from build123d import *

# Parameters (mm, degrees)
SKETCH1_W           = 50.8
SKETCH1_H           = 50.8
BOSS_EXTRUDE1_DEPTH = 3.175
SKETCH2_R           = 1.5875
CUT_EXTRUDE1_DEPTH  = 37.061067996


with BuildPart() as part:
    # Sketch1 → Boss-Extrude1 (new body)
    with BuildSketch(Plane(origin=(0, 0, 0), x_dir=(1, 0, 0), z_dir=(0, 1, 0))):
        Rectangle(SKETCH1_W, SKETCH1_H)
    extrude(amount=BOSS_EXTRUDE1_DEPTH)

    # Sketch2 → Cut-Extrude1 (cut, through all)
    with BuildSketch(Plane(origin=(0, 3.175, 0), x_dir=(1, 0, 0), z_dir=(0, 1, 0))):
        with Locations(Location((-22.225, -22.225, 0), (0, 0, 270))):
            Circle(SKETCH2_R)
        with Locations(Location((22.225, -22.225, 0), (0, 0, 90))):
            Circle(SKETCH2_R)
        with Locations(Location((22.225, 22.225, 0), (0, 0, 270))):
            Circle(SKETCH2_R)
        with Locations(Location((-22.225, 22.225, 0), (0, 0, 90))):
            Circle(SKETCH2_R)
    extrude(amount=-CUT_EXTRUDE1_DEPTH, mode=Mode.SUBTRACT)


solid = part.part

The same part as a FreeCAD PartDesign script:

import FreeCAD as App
import Part
import Sketcher

V = App.Vector
Q = App.Units.Quantity


def add_polygon(sketch, points):
    """Adds a closed chain of lines whose ends are joined by coincident constraints."""
    first, n = sketch.GeometryCount, len(points)
    for a, b in zip(points, points[1:] + points[:1]):
        sketch.addGeometry(Part.LineSegment(App.Vector(*a, 0), App.Vector(*b, 0)), False)
    for i in range(n):
        sketch.addConstraint(Sketcher.Constraint("Coincident", first + i, 2, first + (i + 1) % n, 1))

doc = App.newDocument("Part")
body = doc.addObject("PartDesign::Body", "Body")

# Sketch on XZ plane
sketch1 = body.newObject("Sketcher::SketchObject", "Sketch")
sketch1.AttachmentSupport = (doc.getObject("XZ_Plane"), [""])
sketch1.MapMode = "FlatFace"
add_polygon(sketch1, [(-25, -25), (-25, 25), (25, 25), (25, -25)])  # lines 0-3
sketch1.addConstraint(Sketcher.Constraint("Vertical", 0))
sketch1.addConstraint(Sketcher.Constraint("Horizontal", 1))
sketch1.addConstraint(Sketcher.Constraint("Vertical", 2))
sketch1.addConstraint(Sketcher.Constraint("Horizontal", 3))
sketch1.addConstraint(Sketcher.Constraint("Symmetric", 0, 2, 2, 2, -1, 1))
sketch1.addConstraint(Sketcher.Constraint("Equal", 3, 0))
sketch1.addConstraint(Sketcher.Constraint("DistanceX", 1, 1, 1, 2, Q("2 in")))
pad1 = body.newObject("PartDesign::Pad", "Pad")
pad1.Profile = sketch1
pad1.Length = Q("0.125 in")
pad1.Reversed = True

# Sketch on XZ plane
sketch2 = body.newObject("Sketcher::SketchObject", "Sketch001")
sketch2.AttachmentSupport = (doc.getObject("XZ_Plane"), [""])
sketch2.MapMode = "FlatFace"
sketch2.AttachmentOffset = App.Placement(V(0, 0, -0.125 * 25.4), App.Rotation())
sketch2.addGeometry(Part.Circle(V(-22.2, 22.2, 0), V(0, 0, 1), 1.6), False)
sketch2.addGeometry(Part.Circle(V(22.2, 22.2, 0), V(0, 0, 1), 1.6), False)
sketch2.addGeometry(Part.Circle(V(22.2, -22.2, 0), V(0, 0, 1), 1.6), False)
sketch2.addGeometry(Part.Circle(V(-22.2, -22.2, 0), V(0, 0, 1), 1.6), False)
sketch2.addConstraint(Sketcher.Constraint("Equal", 0, 1))
sketch2.addConstraint(Sketcher.Constraint("Equal", 1, 2))
sketch2.addConstraint(Sketcher.Constraint("Equal", 2, 3))
sketch2.addConstraint(Sketcher.Constraint("Symmetric", 0, 3, 2, 3, -1, 1))
sketch2.addConstraint(Sketcher.Constraint("Symmetric", 1, 3, 3, 3, -1, 1))
sketch2.addConstraint(Sketcher.Constraint("Symmetric", 0, 3, 1, 3, -2))
sketch2.addConstraint(Sketcher.Constraint("Diameter", 0, Q("0.125 in")))
sketch2.addConstraint(Sketcher.Constraint("DistanceX", 0, 3, 1, 3, Q("1.75 in")))
sketch2.addConstraint(Sketcher.Constraint("DistanceY", 2, 3, 1, 3, Q("1.75 in")))
pocket1 = body.newObject("PartDesign::Pocket", "Pocket")
pocket1.Profile = sketch2
pocket1.Type = "ThroughAll"
pocket1.Reversed = True

doc.recompute()
